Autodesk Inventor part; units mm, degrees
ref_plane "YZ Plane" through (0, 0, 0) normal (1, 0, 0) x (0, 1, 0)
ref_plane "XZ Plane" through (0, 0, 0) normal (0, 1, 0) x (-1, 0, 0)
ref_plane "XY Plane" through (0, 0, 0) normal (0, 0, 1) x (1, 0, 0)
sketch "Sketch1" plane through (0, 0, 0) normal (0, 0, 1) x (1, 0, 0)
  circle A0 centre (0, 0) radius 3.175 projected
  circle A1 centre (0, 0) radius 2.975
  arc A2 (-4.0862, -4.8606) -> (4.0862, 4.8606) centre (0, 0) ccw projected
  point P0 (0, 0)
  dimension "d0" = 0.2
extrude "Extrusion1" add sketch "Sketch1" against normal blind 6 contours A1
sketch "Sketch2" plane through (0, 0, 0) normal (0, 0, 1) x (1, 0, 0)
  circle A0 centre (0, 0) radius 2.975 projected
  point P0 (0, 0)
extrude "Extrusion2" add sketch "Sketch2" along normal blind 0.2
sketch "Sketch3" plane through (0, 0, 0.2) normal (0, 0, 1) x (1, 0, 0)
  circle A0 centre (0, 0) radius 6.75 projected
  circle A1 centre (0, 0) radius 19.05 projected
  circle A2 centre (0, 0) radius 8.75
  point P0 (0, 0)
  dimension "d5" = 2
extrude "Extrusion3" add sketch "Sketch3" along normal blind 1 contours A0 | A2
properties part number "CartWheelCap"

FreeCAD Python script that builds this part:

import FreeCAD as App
import Part
import Sketcher

doc = App.newDocument("Part")
params = doc.addObject("Spreadsheet::Sheet", "Params")
for row, (alias, value) in enumerate([
    ("sketch1_diameter", "5.95 mm"),
    ("pad1_length", "6 mm"),
    ("sketch2_diameter", "5.95 mm"),
    ("pad2_length", "0.2 mm"),
    ("sketch3_diameter", "17.5 mm"),
    ("pad3_length", "1 mm"),
], start=1):
    params.set(f"A{row}", alias)
    params.set(f"B{row}", "=" + value)
    params.setAlias(f"B{row}", alias)

body = doc.addObject("PartDesign::Body", "Body")

# Sketch on XY plane
sketch1 = body.newObject("Sketcher::SketchObject", "Sketch")
sketch1.AttachmentSupport = (doc.getObject("XY_Plane"), [""])
sketch1.MapMode = "FlatFace"
sketch1.addGeometry(Part.Circle(App.Vector(0, 0, 0), App.Vector(0, 0, 1), 3), False)
sketch1.addConstraint(Sketcher.Constraint("Coincident", 0, 3, -1, 1))
sketch1.addConstraint(Sketcher.Constraint("Diameter", 0, 5.95))
sketch1.setExpression("Constraints[1]", "Params.sketch1_diameter")
pad1 = body.newObject("PartDesign::Pad", "Pad")
pad1.Profile = sketch1
pad1.setExpression("Length", "Params.pad1_length")
pad1.Reversed = True

# Sketch on XY plane
sketch2 = body.newObject("Sketcher::SketchObject", "Sketch001")
sketch2.AttachmentSupport = (doc.getObject("XY_Plane"), [""])
sketch2.MapMode = "FlatFace"
sketch2.addGeometry(Part.Circle(App.Vector(0, 0, 0), App.Vector(0, 0, 1), 3), False)
sketch2.addConstraint(Sketcher.Constraint("Coincident", 0, 3, -1, 1))
sketch2.addConstraint(Sketcher.Constraint("Diameter", 0, 5.95))
sketch2.setExpression("Constraints[1]", "Params.sketch2_diameter")
pad2 = body.newObject("PartDesign::Pad", "Pad001")
pad2.Profile = sketch2
pad2.setExpression("Length", "Params.pad2_length")

# Sketch on XY plane
sketch3 = body.newObject("Sketcher::SketchObject", "Sketch002")
sketch3.AttachmentSupport = (doc.getObject("XY_Plane"), [""])
sketch3.MapMode = "FlatFace"
sketch3.AttachmentOffset = App.Placement(App.Vector(0, 0, 0.2), App.Rotation())
sketch3.addGeometry(Part.Circle(App.Vector(0, 0, 0), App.Vector(0, 0, 1), 9), False)
sketch3.addConstraint(Sketcher.Constraint("Coincident", 0, 3, -1, 1))
sketch3.addConstraint(Sketcher.Constraint("Diameter", 0, 17.5))
sketch3.setExpression("Constraints[1]", "Params.sketch3_diameter")
pad3 = body.newObject("PartDesign::Pad", "Pad002")
pad3.Profile = sketch3
pad3.setExpression("Length", "Params.pad3_length")

doc.recompute()
